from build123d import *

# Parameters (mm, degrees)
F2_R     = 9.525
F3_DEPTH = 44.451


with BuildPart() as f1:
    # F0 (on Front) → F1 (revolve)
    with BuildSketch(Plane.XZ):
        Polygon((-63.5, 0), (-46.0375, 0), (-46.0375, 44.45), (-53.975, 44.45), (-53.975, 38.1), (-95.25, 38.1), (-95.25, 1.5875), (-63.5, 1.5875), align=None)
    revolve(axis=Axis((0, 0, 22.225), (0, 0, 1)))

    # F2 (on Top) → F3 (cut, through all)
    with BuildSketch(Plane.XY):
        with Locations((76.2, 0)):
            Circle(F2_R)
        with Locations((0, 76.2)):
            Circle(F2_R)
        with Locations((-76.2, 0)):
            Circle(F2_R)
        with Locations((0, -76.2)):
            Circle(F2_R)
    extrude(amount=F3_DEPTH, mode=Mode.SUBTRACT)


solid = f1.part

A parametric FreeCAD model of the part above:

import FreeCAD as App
import Part
import Sketcher
from FreeCAD import Vector
Q = App.Units.Quantity

doc = App.newDocument("Part")
body = doc.addObject("PartDesign::Body", "Body")

# Sketch on XZ plane
sketch1 = body.newObject("Sketcher::SketchObject", "Sketch")
sketch1.AttachmentSupport = (doc.getObject("XZ_Plane"), [""])
sketch1.MapMode = "FlatFace"
sketch1.addGeometry(Part.LineSegment(Vector(-63.5, 0, 0), Vector(-46, 0, 0)), False)
sketch1.addGeometry(Part.LineSegment(Vector(-46, 0, 0), Vector(-46, 44.5, 0)), False)
sketch1.addGeometry(Part.LineSegment(Vector(-46, 44.5, 0), Vector(-54, 44.5, 0)), False)
sketch1.addGeometry(Part.LineSegment(Vector(-54, 44.5, 0), Vector(-54, 38.1, 0)), False)
sketch1.addGeometry(Part.LineSegment(Vector(-54, 38.1, 0), Vector(-95.2, 38.1, 0)), False)
sketch1.addGeometry(Part.LineSegment(Vector(-95.2, 38.1, 0), Vector(-95.2, 1.6, 0)), False)
sketch1.addGeometry(Part.LineSegment(Vector(-95.2, 1.6, 0), Vector(-63.5, 1.6, 0)), False)
sketch1.addGeometry(Part.LineSegment(Vector(-63.5, 1.6, 0), Vector(-63.5, 0, 0)), False)
sketch1.addConstraint(Sketcher.Constraint("Coincident", 0, 2, 1, 1))
sketch1.addConstraint(Sketcher.Constraint("Coincident", 1, 2, 2, 1))
sketch1.addConstraint(Sketcher.Constraint("Coincident", 2, 2, 3, 1))
sketch1.addConstraint(Sketcher.Constraint("Coincident", 3, 2, 4, 1))
sketch1.addConstraint(Sketcher.Constraint("Coincident", 4, 2, 5, 1))
sketch1.addConstraint(Sketcher.Constraint("Coincident", 5, 2, 6, 1))
sketch1.addConstraint(Sketcher.Constraint("Coincident", 6, 2, 7, 1))
sketch1.addConstraint(Sketcher.Constraint("Coincident", 7, 2, 0, 1))
sketch1.addConstraint(Sketcher.Constraint("Horizontal", 0))
sketch1.addConstraint(Sketcher.Constraint("Vertical", 1))
sketch1.addConstraint(Sketcher.Constraint("Horizontal", 2))
sketch1.addConstraint(Sketcher.Constraint("Vertical", 3))
sketch1.addConstraint(Sketcher.Constraint("Horizontal", 4))
sketch1.addConstraint(Sketcher.Constraint("Vertical", 5))
sketch1.addConstraint(Sketcher.Constraint("Horizontal", 6))
sketch1.addConstraint(Sketcher.Constraint("Vertical", 7))
sketch1.addConstraint(Sketcher.Constraint("PointOnObject", 0, 2, -1))
sketch1.addConstraint(Sketcher.Constraint("DistanceX", 6, 1, 6, 2, Q("1.25 in")))
sketch1.addConstraint(Sketcher.Constraint("DistanceY", 1, 1, 1, 2, Q("1.75 in")))
sketch1.addConstraint(Sketcher.Constraint("DistanceY", 3, 2, 3, 1, Q("0.25 in")))
sketch1.addConstraint(Sketcher.Constraint("DistanceX", 6, 2, -1, 1, Q("2.5 in")))
sketch1.addConstraint(Sketcher.Constraint("DistanceX", 0, 1, 0, 2, Q("0.6875 in")))
sketch1.addConstraint(Sketcher.Constraint("DistanceX", 2, 2, 2, 1, Q("0.3125 in")))
sketch1.addConstraint(Sketcher.Constraint("DistanceY", 5, 2, 5, 1, Q("1.4375 in")))
revolution = body.newObject("PartDesign::Revolution", "Revolution")
revolution.Profile = sketch1
revolution.ReferenceAxis = (sketch1, ["V_Axis"])
revolution.Angle = 360

# Sketch on XY plane
sketch2 = body.newObject("Sketcher::SketchObject", "Sketch001")
sketch2.AttachmentSupport = (doc.getObject("XY_Plane"), [""])
sketch2.MapMode = "FlatFace"
sketch2.addGeometry(Part.Circle(Vector(76, 0, 0), Vector(0, 0, 1), 10), False)
sketch2.addGeometry(Part.Circle(Vector(0, 76, 0), Vector(0, 0, 1), 10), False)
sketch2.addGeometry(Part.Circle(Vector(-76, 0, 0), Vector(0, 0, 1), 10), False)
sketch2.addGeometry(Part.Circle(Vector(0, -76, 0), Vector(0, 0, 1), 10), False)
sketch2.addConstraint(Sketcher.Constraint("Equal", 0, 1))
sketch2.addConstraint(Sketcher.Constraint("Equal", 1, 2))
sketch2.addConstraint(Sketcher.Constraint("Equal", 2, 3))
sketch2.addConstraint(Sketcher.Constraint("Symmetric", 0, 3, 2, 3, -1, 1))
sketch2.addConstraint(Sketcher.Constraint("Symmetric", 1, 3, 3, 3, -1, 1))
sketch2.addConstraint(Sketcher.Constraint("PointOnObject", 0, 3, -1))
sketch2.addConstraint(Sketcher.Constraint("PointOnObject", 1, 3, -2))
sketch2.addConstraint(Sketcher.Constraint("Diameter", 0, Q("0.75 in")))
sketch2.addConstraint(Sketcher.Constraint("DistanceX", -1, 1, 0, 3, Q("3 in")))
sketch2.addConstraint(Sketcher.Constraint("DistanceY", -1, 1, 1, 3, Q("3 in")))
pocket1 = body.newObject("PartDesign::Pocket", "Pocket")
pocket1.Profile = sketch2
pocket1.Type = "ThroughAll"
pocket1.Reversed = True

doc.recompute()
